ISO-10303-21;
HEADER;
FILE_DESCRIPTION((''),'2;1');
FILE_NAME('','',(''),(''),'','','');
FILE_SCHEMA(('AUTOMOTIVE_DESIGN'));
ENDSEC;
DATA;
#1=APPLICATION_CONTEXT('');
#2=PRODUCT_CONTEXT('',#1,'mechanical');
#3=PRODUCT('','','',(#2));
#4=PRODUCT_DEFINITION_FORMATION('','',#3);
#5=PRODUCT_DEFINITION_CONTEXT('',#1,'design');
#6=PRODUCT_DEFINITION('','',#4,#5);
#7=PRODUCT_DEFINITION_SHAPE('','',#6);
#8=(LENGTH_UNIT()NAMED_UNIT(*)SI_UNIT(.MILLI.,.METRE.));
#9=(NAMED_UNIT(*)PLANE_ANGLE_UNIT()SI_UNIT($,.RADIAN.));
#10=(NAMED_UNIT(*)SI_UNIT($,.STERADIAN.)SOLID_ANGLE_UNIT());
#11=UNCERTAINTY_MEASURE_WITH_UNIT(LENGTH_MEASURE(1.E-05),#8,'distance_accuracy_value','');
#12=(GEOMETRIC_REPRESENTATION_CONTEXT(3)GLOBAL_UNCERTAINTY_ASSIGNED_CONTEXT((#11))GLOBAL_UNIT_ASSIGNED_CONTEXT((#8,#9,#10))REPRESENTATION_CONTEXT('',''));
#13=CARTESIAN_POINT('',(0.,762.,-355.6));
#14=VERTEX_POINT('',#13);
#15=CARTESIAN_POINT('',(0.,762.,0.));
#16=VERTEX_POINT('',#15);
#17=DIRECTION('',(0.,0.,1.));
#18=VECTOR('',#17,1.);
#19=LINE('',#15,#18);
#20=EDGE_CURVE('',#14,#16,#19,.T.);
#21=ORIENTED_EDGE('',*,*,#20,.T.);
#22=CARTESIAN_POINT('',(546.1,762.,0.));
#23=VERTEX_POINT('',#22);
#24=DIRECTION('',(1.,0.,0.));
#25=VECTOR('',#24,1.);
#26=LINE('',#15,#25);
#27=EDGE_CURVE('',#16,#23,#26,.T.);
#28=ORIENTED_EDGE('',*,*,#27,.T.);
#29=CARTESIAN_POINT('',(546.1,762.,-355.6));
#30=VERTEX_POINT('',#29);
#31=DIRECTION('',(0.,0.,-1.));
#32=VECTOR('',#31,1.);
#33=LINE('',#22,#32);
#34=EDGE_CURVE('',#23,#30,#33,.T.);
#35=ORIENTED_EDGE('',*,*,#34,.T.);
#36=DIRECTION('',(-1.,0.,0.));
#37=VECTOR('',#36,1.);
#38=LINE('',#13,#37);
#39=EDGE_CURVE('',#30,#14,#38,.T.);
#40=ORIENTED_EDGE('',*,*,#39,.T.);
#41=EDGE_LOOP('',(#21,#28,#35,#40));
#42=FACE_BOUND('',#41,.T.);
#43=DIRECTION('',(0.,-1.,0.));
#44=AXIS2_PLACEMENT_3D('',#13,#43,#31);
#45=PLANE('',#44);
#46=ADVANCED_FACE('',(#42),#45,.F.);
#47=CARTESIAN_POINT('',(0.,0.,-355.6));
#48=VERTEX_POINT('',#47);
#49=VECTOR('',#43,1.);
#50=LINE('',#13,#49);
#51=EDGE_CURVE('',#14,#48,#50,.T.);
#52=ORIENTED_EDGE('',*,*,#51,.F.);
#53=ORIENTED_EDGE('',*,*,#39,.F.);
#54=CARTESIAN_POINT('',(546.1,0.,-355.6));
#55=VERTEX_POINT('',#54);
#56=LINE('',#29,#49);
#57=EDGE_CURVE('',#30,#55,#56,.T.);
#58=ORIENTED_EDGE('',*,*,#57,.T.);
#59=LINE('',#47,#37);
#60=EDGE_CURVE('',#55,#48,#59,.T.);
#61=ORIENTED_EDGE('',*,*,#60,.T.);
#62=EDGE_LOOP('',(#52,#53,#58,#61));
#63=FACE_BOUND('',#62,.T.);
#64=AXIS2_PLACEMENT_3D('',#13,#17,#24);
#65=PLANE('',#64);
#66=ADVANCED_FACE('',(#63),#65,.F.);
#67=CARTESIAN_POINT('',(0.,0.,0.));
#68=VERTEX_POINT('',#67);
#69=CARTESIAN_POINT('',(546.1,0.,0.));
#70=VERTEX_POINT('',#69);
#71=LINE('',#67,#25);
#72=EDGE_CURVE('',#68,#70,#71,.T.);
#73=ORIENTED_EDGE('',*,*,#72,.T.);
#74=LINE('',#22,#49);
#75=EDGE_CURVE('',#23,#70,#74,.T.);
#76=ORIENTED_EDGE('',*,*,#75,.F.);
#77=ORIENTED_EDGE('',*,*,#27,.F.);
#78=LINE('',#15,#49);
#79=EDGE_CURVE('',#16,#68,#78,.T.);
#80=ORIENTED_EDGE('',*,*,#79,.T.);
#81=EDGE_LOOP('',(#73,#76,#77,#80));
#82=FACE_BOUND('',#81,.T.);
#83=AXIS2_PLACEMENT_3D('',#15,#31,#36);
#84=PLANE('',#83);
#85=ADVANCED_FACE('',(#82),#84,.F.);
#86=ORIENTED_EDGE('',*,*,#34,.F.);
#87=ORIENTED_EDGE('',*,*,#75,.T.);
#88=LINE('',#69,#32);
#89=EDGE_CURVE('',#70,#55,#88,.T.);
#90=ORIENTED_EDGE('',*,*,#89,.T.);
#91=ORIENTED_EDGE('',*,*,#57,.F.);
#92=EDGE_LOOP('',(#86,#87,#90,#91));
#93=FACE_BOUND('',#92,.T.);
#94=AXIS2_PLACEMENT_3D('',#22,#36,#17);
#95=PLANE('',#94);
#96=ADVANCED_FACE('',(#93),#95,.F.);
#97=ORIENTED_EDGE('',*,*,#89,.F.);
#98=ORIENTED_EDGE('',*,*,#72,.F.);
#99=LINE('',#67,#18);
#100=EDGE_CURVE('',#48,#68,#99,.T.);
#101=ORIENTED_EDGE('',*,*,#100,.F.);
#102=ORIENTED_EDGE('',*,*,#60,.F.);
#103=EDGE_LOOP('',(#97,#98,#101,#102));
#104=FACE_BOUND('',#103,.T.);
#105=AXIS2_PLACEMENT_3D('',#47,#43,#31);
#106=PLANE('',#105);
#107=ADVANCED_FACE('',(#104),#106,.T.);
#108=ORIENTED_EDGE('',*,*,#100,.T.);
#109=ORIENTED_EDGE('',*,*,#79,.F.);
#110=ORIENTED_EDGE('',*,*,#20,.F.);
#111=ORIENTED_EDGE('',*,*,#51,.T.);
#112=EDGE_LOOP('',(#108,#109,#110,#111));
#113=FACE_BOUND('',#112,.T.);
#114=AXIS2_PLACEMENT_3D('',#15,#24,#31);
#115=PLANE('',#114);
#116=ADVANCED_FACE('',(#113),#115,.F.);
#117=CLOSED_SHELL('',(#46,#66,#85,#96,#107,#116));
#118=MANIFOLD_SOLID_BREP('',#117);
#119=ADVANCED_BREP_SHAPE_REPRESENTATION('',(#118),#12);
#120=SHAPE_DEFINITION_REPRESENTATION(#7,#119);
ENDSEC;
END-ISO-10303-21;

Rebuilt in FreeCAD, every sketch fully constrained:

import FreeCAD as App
import Part
import Sketcher
Q = App.Units.Quantity


def add_polygon(sketch, points):
    """Adds a closed chain of lines whose ends are joined by coincident constraints."""
    first, n = sketch.GeometryCount, len(points)
    for a, b in zip(points, points[1:] + points[:1]):
        sketch.addGeometry(Part.LineSegment(App.Vector(*a, 0), App.Vector(*b, 0)), False)
    for i in range(n):
        sketch.addConstraint(Sketcher.Constraint("Coincident", first + i, 2, first + (i + 1) % n, 1))

doc = App.newDocument("Part")
body = doc.addObject("PartDesign::Body", "Body")

# Sketch on XZ plane
sketch1 = doc.addObject("Sketcher::SketchObject", "Sketch")
body.addObject(sketch1)
sketch1.AttachmentSupport = (doc.XZ_Plane, [""])
sketch1.MapMode = "FlatFace"
add_polygon(sketch1, [(0, -356), (0, 0), (546, 0), (546, -356)])  # lines 0-3
sketch1.addConstraint(Sketcher.Constraint("Vertical", 0))
sketch1.addConstraint(Sketcher.Constraint("Horizontal", 1))
sketch1.addConstraint(Sketcher.Constraint("Vertical", 2))
sketch1.addConstraint(Sketcher.Constraint("Horizontal", 3))
sketch1.addConstraint(Sketcher.Constraint("Coincident", 0, 2, -1, 1))
sketch1.addConstraint(Sketcher.Constraint("DistanceY", 0, 1, 0, 2, Q("14 in")))
sketch1.addConstraint(Sketcher.Constraint("DistanceX", 1, 1, 1, 2, Q("21.5 in")))
pad1 = doc.addObject("PartDesign::Pad", "Pad")
body.addObject(pad1)
pad1.Profile = sketch1
pad1.Length = Q("30 in")
pad1.Reversed = True

doc.recompute()
